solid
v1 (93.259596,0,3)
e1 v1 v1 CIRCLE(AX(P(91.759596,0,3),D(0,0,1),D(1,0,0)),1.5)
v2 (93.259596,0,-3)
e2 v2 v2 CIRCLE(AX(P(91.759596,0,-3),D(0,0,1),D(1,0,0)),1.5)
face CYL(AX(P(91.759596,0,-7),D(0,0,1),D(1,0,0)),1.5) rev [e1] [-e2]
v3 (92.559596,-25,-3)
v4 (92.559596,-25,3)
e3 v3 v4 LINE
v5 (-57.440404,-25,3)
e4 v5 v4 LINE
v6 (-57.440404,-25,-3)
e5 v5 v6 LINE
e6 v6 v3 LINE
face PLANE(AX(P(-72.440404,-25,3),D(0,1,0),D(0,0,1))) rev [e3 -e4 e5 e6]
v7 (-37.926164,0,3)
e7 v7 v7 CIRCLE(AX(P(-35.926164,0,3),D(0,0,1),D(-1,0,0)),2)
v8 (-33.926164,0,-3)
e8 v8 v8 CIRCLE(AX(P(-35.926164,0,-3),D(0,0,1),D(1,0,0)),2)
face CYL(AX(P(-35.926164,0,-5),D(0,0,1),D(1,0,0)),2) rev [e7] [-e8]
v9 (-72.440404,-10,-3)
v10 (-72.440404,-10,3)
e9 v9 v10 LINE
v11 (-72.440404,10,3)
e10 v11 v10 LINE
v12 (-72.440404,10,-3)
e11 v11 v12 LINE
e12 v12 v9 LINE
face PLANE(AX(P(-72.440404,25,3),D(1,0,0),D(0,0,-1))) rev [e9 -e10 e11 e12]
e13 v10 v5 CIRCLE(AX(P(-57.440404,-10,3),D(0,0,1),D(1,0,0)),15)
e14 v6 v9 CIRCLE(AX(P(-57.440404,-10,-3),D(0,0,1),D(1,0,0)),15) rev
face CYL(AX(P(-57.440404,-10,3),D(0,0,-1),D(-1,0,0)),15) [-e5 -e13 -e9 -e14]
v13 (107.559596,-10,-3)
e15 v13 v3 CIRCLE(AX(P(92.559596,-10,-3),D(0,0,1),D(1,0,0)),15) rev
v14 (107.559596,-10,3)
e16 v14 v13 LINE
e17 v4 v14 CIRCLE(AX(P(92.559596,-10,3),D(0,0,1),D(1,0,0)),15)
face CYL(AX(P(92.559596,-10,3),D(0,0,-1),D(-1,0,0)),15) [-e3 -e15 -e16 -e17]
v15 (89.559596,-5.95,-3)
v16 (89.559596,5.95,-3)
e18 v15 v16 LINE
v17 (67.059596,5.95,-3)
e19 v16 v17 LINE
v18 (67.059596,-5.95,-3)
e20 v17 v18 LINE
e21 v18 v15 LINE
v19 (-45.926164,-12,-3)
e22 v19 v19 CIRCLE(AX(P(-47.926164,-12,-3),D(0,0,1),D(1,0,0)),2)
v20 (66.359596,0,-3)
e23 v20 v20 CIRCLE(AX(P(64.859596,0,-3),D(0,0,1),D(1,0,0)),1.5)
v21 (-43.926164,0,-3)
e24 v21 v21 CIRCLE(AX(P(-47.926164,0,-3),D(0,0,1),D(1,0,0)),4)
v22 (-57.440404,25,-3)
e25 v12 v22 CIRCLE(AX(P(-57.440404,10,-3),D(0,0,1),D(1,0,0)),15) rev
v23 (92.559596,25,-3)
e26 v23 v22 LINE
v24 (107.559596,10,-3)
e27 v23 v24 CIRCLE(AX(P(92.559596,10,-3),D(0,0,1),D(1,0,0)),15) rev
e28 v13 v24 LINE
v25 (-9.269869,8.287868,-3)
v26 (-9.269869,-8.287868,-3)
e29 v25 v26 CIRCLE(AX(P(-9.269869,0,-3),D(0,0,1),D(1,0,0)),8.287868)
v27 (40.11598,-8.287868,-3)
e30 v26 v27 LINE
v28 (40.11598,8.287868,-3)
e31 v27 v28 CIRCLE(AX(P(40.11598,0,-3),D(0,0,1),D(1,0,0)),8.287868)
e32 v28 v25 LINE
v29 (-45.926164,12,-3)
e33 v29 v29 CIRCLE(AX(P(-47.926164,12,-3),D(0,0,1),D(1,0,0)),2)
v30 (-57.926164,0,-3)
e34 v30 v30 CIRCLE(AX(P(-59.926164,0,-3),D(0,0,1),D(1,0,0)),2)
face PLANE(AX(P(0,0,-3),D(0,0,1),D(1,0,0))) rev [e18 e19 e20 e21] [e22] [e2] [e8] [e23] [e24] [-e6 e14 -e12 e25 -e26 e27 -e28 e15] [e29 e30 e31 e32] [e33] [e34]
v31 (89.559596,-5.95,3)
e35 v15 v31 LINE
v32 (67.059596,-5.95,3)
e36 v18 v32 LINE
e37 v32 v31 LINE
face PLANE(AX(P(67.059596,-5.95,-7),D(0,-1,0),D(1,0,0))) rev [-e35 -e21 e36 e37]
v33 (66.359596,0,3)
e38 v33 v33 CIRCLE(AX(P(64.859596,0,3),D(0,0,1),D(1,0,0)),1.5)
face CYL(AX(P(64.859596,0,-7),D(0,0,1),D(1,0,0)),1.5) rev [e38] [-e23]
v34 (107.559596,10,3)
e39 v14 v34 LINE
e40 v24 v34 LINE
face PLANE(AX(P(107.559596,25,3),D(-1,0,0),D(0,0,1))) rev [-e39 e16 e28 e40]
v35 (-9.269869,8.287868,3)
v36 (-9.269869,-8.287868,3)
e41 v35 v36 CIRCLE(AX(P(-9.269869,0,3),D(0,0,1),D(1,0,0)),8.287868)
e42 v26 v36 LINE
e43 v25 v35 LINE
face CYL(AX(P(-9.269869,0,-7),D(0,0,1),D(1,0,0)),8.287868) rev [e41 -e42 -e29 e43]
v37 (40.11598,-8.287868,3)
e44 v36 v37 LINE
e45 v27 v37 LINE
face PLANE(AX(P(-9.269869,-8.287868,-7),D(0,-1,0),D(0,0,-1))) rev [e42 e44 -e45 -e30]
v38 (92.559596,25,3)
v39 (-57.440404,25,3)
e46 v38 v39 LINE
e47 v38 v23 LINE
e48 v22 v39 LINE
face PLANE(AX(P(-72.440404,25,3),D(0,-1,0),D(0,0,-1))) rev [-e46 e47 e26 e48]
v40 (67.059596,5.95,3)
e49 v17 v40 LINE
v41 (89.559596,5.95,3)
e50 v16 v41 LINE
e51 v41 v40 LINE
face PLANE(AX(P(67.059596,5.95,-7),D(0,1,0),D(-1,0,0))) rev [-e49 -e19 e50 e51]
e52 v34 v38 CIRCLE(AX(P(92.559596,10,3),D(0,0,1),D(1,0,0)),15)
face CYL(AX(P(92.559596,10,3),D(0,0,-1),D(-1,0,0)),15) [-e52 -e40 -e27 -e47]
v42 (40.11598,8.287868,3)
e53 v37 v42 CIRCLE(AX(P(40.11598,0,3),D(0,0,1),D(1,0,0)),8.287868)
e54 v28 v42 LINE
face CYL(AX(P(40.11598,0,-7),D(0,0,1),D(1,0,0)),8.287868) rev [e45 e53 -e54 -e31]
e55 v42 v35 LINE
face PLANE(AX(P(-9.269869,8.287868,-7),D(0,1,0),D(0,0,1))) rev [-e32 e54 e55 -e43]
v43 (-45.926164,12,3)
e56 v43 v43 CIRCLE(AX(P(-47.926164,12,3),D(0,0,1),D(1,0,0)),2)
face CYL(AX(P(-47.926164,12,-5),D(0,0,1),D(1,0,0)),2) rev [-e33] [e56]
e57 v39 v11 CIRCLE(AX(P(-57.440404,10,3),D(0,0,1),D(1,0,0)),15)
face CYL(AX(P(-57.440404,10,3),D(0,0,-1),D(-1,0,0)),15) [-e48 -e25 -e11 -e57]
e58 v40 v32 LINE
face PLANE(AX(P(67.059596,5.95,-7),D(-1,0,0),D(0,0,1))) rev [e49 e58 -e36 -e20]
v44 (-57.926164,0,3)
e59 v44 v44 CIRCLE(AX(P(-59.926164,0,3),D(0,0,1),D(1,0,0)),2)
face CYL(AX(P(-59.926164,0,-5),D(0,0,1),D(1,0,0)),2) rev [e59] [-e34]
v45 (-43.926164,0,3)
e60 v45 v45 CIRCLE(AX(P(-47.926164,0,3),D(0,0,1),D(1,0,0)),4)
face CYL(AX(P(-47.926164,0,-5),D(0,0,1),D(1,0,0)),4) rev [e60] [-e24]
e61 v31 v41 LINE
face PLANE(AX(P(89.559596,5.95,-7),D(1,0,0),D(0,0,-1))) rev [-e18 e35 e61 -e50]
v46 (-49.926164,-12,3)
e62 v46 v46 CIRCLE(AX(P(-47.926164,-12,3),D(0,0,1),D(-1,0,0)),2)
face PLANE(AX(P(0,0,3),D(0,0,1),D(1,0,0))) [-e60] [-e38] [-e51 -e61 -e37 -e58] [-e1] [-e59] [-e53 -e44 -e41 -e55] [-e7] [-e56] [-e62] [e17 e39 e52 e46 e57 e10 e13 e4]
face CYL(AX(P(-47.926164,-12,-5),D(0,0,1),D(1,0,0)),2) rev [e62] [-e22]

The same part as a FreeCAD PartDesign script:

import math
import FreeCAD as App
import Part
import Sketcher
Q = App.Units.Quantity


def edges_at(feature, points):
    """Names of the edges that pass closest to the given points."""
    edges = feature.Shape.Edges
    near = lambda p: min(range(len(edges)), key=lambda i: edges[i].distToShape(Part.Vertex(*p))[0])
    return sorted({f"Edge{near(p) + 1}" for p in points})


def add_polygon(sketch, points):
    """Adds a closed chain of lines whose ends are joined by coincident constraints."""
    first, n = sketch.GeometryCount, len(points)
    for a, b in zip(points, points[1:] + points[:1]):
        sketch.addGeometry(Part.LineSegment(App.Vector(*a, 0), App.Vector(*b, 0)), False)
    for i in range(n):
        sketch.addConstraint(Sketcher.Constraint("Coincident", first + i, 2, first + (i + 1) % n, 1))

doc = App.newDocument("Part")
params = doc.addObject("Spreadsheet::Sheet", "Params")
for row, (alias, value) in enumerate([
    ("sketch1_width", "180 mm"),
    ("sketch1_height", "50 mm"),
    ("pad1_length", "6 mm"),
    ("fillet_radius", "15 mm"),
    ("sketch2_diameter", "8 mm"),
    ("sketch2_diameter2", "4 mm"),
    ("pocket1_length", "8 mm"),
    ("sketch3_diameter", "3 mm"),
    ("sketch3_width", "22.5 mm"),
    ("sketch3_height", "11.9 mm"),
    ("pocket2_length", "10 mm"),
], start=1):
    params.set(f"A{row}", alias)
    params.set(f"B{row}", "=" + value)
    params.setAlias(f"B{row}", alias)

body = doc.addObject("PartDesign::Body", "Body")

# Sketch on XY plane
sketch1 = doc.addObject("Sketcher::SketchObject", "Sketch")
body.addObject(sketch1)
sketch1.AttachmentSupport = (doc.XY_Plane, [""])
sketch1.MapMode = "FlatFace"
add_polygon(sketch1, [(-72, 25), (-72, -25), (108, -25), (108, 25)])  # lines 0-3
sketch1.addConstraint([
    Sketcher.Constraint("Vertical", 0),
    Sketcher.Constraint("Horizontal", 1),
    Sketcher.Constraint("Vertical", 2),
    Sketcher.Constraint("Horizontal", 3),
    Sketcher.Constraint("DistanceX", 1, 1, 1, 2, Q("180 mm")),
    Sketcher.Constraint("DistanceY", 0, 2, 0, 1, Q("50 mm")),
    Sketcher.Constraint("DistanceY", 0, 2, -1, 1, Q("25 mm")),
    Sketcher.Constraint("DistanceX", 0, 2, -1, 1, Q("72.440404 mm")),
])
sketch1.setExpression("Constraints[8]", "Params.sketch1_width")
sketch1.setExpression("Constraints[9]", "Params.sketch1_height")
pad1 = doc.addObject("PartDesign::Pad", "Pad")
body.addObject(pad1)
pad1.Profile = sketch1
pad1.setExpression("Length", "Params.pad1_length")
pad1.Midplane = True
doc.recompute()

fillet = doc.addObject("PartDesign::Fillet", "Fillet")
body.addObject(fillet)
fillet.Base = (pad1, edges_at(pad1, [
    (107.56, -25, 0),
    (-72.44, -25, 0),
    (-72.44, 25, 0),
    (107.56, 25, 0),
]))
fillet.setExpression("Radius", "Params.fillet_radius")

# Sketch on XY plane
sketch2 = doc.addObject("Sketcher::SketchObject", "Sketch001")
body.addObject(sketch2)
sketch2.AttachmentSupport = (doc.XY_Plane, [""])
sketch2.MapMode = "FlatFace"
sketch2.AttachmentOffset = App.Placement(App.Vector(0, 0, 3), App.Rotation())
sketch2.addGeometry([
    Part.Circle(App.Vector(-47.9, 0, 0), App.Vector(0, 0, 1), 4),  # 0
    Part.Circle(App.Vector(-47.9, 12, 0), App.Vector(0, 0, 1), 2),  # 1
    Part.Circle(App.Vector(-47.9, -12, 0), App.Vector(0, 0, 1), 2),  # 2
    Part.Circle(App.Vector(-59.9, 0, 0), App.Vector(0, 0, 1), 2),  # 3
    Part.Circle(App.Vector(-35.9, 0, 0), App.Vector(0, 0, 1), 2),  # 4
], False)
sketch2.addConstraint([
    Sketcher.Constraint("Equal", 1, 2),
    Sketcher.Constraint("Equal", 2, 3),
    Sketcher.Constraint("Equal", 3, 4),
    Sketcher.Constraint("Symmetric", 1, 3, 2, 3, -1),
    Sketcher.Constraint("PointOnObject", 0, 3, -1),
    Sketcher.Constraint("PointOnObject", 3, 3, -1),
    Sketcher.Constraint("PointOnObject", 4, 3, -1),
    Sketcher.Constraint("Vertical", 0, 3, 1, 3),
    Sketcher.Constraint("Diameter", 0, Q("8 mm")),
    Sketcher.Constraint("Diameter", 1, Q("4 mm")),
    Sketcher.Constraint("DistanceY", -1, 1, 1, 3, Q("12 mm")),
    Sketcher.Constraint("DistanceX", 3, 3, 0, 3, Q("12 mm")),
    Sketcher.Constraint("DistanceX", 0, 3, 4, 3, Q("12 mm")),
    Sketcher.Constraint("DistanceX", 0, 3, -1, 1, Q("47.926164 mm")),
])
sketch2.setExpression("Constraints[8]", "Params.sketch2_diameter")
sketch2.setExpression("Constraints[9]", "Params.sketch2_diameter2")
pocket1 = doc.addObject("PartDesign::Pocket", "Pocket")
body.addObject(pocket1)
pocket1.Profile = sketch2
pocket1.setExpression("Length", "Params.pocket1_length")

# Sketch on XY plane
sketch3 = doc.addObject("Sketcher::SketchObject", "Sketch002")
body.addObject(sketch3)
sketch3.AttachmentSupport = (doc.XY_Plane, [""])
sketch3.MapMode = "FlatFace"
sketch3.AttachmentOffset = App.Placement(App.Vector(0, 0, 3), App.Rotation())
sketch3.addGeometry(Part.Circle(App.Vector(64.9, 0, 0), App.Vector(0, 0, 1), 1.5), False)  # 0
sketch3.addGeometry(Part.Circle(App.Vector(91.8, 0, 0), App.Vector(0, 0, 1), 1.5), False)  # 1
add_polygon(sketch3, [(67.1, 6), (67.1, -6), (89.6, -6), (89.6, 6)])  # lines 2-5
sketch3.addGeometry(Part.LineSegment(App.Vector(40.1, 8.3, 0), App.Vector(-9.3, 8.3, 0)), False)  # 6
sketch3.addGeometry(Part.ArcOfCircle(Part.Circle(App.Vector(-9.3, 0, 0), App.Vector(0, 0, 1), 8.3), math.radians(90), math.radians(270)), False)  # 7
sketch3.addGeometry(Part.LineSegment(App.Vector(-9.3, -8.3, 0), App.Vector(40.1, -8.3, 0)), False)  # 8
sketch3.addGeometry(Part.ArcOfCircle(Part.Circle(App.Vector(40.1, 0, 0), App.Vector(0, 0, 1), 8.3), math.radians(-90), math.radians(90)), False)  # 9
sketch3.addConstraint([
    Sketcher.Constraint("Tangent", 6, 2, 7, 1),
    Sketcher.Constraint("Tangent", 7, 2, 8, 1),
    Sketcher.Constraint("Tangent", 8, 2, 9, 1),
    Sketcher.Constraint("Tangent", 9, 2, 6, 1),
    Sketcher.Constraint("Vertical", 2),
    Sketcher.Constraint("Horizontal", 3),
    Sketcher.Constraint("Vertical", 4),
    Sketcher.Constraint("Horizontal", 5),
    Sketcher.Constraint("Horizontal", 6),
    Sketcher.Constraint("Horizontal", 8),
    Sketcher.Constraint("Equal", 0, 1),
    Sketcher.Constraint("PointOnObject", 0, 3, -1),
    Sketcher.Constraint("PointOnObject", 1, 3, -1),
    Sketcher.Constraint("PointOnObject", 7, 3, -1),
    Sketcher.Constraint("Diameter", 0, Q("3 mm")),
    Sketcher.Constraint("DistanceX", 3, 1, 3, 2, Q("22.5 mm")),
    Sketcher.Constraint("DistanceY", 2, 2, 2, 1, Q("11.9 mm")),
    Sketcher.Constraint("DistanceX", 0, 3, 1, 3, Q("26.9 mm")),
    Sketcher.Constraint("DistanceX", 0, 3, 2, 2, Q("2.2 mm")),
    Sketcher.Constraint("DistanceY", 2, 2, -1, 1, Q("5.95 mm")),
    Sketcher.Constraint("Radius", 7, Q("8.287868 mm")),
    Sketcher.Constraint("DistanceX", 6, 2, 6, 1, Q("49.385849 mm")),
    Sketcher.Constraint("DistanceX", 7, 3, -1, 1, Q("9.269869 mm")),
    Sketcher.Constraint("DistanceX", -1, 1, 0, 3, Q("64.859596 mm")),
])
sketch3.setExpression("Constraints[18]", "Params.sketch3_diameter")
sketch3.setExpression("Constraints[19]", "Params.sketch3_width")
sketch3.setExpression("Constraints[20]", "Params.sketch3_height")
pocket2 = doc.addObject("PartDesign::Pocket", "Pocket001")
body.addObject(pocket2)
pocket2.Profile = sketch3
pocket2.setExpression("Length", "Params.pocket2_length")

doc.recompute()
